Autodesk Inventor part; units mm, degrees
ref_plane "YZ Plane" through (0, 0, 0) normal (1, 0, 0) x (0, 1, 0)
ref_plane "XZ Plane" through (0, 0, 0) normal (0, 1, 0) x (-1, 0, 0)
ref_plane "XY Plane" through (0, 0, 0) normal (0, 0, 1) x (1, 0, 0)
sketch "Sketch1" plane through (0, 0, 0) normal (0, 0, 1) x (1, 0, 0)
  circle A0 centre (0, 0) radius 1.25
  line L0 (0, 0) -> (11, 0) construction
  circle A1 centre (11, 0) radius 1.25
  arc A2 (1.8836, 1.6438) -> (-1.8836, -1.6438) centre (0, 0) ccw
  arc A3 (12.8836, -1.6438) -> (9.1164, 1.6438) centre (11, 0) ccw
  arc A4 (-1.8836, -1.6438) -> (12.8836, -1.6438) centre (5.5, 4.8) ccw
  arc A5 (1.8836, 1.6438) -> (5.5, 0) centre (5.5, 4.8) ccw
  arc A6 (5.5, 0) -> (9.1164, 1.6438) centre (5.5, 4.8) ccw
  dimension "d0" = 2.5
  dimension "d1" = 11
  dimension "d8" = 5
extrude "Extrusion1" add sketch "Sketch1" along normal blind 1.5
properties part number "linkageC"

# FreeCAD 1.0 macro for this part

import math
import FreeCAD as App
import Part
import Sketcher
from FreeCAD import Vector
Q = App.Units.Quantity

doc = App.newDocument("Part")
body = doc.addObject("PartDesign::Body", "Body")

sketch1 = body.newObject("Sketcher::SketchObject", "Sketch")
sketch1.AttachmentSupport = (doc.getObject("XY_Plane"), [""])
sketch1.MapMode = "FlatFace"
sketch1.addGeometry([
    Part.ArcOfCircle(Part.Circle(Vector(5.5, 4.8, 0), Vector(0, 0, 1), 4.8), math.radians(-139), math.radians(-90)),
    Part.ArcOfCircle(Part.Circle(Vector(0, 0, 0), Vector(0, 0, 1), 2.5), math.radians(41), math.radians(221)),
    Part.ArcOfCircle(Part.Circle(Vector(5.5, 4.8, 0), Vector(0, 0, 1), 9.8), math.radians(-139), math.radians(-41)),
    Part.ArcOfCircle(Part.Circle(Vector(11, 0, 0), Vector(0, 0, 1), 2.5), math.radians(-41), math.radians(139)),
    Part.ArcOfCircle(Part.Circle(Vector(5.5, 4.8, 0), Vector(0, 0, 1), 4.8), math.radians(-90), math.radians(-41)),
    Part.Circle(Vector(0, 0, 0), Vector(0, 0, 1), 1.2),
    Part.Circle(Vector(11, 0, 0), Vector(0, 0, 1), 1.2),
], False)
sketch1.addConstraint([
    Sketcher.Constraint("Tangent", 0, 1, 1, 1),
    Sketcher.Constraint("Tangent", 1, 2, 2, 1),
    Sketcher.Constraint("Tangent", 2, 2, 3, 1),
    Sketcher.Constraint("Tangent", 3, 2, 4, 2),
    Sketcher.Constraint("Tangent", 4, 1, 0, 2),
    Sketcher.Constraint("Coincident", 1, 3, -1, 1),
    Sketcher.Constraint("Coincident", 5, 3, -1, 1),
    Sketcher.Constraint("Coincident", 2, 3, 0, 3),
    Sketcher.Constraint("Coincident", 6, 3, 3, 3),
    Sketcher.Constraint("Equal", 1, 3),
    Sketcher.Constraint("Equal", 5, 6),
    Sketcher.Constraint("PointOnObject", 3, 3, -1),
    Sketcher.Constraint("PointOnObject", 4, 1, -1),
    Sketcher.Constraint("Vertical", 2, 3, 4, 1),
    Sketcher.Constraint("Diameter", 5, Q("2.5 mm")),
    Sketcher.Constraint("Radius", 1, Q("2.5 mm")),
    Sketcher.Constraint("DistanceX", -1, 1, 3, 3, Q("11 mm")),
])
pad1 = body.newObject("PartDesign::Pad", "Pad")
pad1.Profile = sketch1
pad1.Length = 1.5

doc.recompute()
